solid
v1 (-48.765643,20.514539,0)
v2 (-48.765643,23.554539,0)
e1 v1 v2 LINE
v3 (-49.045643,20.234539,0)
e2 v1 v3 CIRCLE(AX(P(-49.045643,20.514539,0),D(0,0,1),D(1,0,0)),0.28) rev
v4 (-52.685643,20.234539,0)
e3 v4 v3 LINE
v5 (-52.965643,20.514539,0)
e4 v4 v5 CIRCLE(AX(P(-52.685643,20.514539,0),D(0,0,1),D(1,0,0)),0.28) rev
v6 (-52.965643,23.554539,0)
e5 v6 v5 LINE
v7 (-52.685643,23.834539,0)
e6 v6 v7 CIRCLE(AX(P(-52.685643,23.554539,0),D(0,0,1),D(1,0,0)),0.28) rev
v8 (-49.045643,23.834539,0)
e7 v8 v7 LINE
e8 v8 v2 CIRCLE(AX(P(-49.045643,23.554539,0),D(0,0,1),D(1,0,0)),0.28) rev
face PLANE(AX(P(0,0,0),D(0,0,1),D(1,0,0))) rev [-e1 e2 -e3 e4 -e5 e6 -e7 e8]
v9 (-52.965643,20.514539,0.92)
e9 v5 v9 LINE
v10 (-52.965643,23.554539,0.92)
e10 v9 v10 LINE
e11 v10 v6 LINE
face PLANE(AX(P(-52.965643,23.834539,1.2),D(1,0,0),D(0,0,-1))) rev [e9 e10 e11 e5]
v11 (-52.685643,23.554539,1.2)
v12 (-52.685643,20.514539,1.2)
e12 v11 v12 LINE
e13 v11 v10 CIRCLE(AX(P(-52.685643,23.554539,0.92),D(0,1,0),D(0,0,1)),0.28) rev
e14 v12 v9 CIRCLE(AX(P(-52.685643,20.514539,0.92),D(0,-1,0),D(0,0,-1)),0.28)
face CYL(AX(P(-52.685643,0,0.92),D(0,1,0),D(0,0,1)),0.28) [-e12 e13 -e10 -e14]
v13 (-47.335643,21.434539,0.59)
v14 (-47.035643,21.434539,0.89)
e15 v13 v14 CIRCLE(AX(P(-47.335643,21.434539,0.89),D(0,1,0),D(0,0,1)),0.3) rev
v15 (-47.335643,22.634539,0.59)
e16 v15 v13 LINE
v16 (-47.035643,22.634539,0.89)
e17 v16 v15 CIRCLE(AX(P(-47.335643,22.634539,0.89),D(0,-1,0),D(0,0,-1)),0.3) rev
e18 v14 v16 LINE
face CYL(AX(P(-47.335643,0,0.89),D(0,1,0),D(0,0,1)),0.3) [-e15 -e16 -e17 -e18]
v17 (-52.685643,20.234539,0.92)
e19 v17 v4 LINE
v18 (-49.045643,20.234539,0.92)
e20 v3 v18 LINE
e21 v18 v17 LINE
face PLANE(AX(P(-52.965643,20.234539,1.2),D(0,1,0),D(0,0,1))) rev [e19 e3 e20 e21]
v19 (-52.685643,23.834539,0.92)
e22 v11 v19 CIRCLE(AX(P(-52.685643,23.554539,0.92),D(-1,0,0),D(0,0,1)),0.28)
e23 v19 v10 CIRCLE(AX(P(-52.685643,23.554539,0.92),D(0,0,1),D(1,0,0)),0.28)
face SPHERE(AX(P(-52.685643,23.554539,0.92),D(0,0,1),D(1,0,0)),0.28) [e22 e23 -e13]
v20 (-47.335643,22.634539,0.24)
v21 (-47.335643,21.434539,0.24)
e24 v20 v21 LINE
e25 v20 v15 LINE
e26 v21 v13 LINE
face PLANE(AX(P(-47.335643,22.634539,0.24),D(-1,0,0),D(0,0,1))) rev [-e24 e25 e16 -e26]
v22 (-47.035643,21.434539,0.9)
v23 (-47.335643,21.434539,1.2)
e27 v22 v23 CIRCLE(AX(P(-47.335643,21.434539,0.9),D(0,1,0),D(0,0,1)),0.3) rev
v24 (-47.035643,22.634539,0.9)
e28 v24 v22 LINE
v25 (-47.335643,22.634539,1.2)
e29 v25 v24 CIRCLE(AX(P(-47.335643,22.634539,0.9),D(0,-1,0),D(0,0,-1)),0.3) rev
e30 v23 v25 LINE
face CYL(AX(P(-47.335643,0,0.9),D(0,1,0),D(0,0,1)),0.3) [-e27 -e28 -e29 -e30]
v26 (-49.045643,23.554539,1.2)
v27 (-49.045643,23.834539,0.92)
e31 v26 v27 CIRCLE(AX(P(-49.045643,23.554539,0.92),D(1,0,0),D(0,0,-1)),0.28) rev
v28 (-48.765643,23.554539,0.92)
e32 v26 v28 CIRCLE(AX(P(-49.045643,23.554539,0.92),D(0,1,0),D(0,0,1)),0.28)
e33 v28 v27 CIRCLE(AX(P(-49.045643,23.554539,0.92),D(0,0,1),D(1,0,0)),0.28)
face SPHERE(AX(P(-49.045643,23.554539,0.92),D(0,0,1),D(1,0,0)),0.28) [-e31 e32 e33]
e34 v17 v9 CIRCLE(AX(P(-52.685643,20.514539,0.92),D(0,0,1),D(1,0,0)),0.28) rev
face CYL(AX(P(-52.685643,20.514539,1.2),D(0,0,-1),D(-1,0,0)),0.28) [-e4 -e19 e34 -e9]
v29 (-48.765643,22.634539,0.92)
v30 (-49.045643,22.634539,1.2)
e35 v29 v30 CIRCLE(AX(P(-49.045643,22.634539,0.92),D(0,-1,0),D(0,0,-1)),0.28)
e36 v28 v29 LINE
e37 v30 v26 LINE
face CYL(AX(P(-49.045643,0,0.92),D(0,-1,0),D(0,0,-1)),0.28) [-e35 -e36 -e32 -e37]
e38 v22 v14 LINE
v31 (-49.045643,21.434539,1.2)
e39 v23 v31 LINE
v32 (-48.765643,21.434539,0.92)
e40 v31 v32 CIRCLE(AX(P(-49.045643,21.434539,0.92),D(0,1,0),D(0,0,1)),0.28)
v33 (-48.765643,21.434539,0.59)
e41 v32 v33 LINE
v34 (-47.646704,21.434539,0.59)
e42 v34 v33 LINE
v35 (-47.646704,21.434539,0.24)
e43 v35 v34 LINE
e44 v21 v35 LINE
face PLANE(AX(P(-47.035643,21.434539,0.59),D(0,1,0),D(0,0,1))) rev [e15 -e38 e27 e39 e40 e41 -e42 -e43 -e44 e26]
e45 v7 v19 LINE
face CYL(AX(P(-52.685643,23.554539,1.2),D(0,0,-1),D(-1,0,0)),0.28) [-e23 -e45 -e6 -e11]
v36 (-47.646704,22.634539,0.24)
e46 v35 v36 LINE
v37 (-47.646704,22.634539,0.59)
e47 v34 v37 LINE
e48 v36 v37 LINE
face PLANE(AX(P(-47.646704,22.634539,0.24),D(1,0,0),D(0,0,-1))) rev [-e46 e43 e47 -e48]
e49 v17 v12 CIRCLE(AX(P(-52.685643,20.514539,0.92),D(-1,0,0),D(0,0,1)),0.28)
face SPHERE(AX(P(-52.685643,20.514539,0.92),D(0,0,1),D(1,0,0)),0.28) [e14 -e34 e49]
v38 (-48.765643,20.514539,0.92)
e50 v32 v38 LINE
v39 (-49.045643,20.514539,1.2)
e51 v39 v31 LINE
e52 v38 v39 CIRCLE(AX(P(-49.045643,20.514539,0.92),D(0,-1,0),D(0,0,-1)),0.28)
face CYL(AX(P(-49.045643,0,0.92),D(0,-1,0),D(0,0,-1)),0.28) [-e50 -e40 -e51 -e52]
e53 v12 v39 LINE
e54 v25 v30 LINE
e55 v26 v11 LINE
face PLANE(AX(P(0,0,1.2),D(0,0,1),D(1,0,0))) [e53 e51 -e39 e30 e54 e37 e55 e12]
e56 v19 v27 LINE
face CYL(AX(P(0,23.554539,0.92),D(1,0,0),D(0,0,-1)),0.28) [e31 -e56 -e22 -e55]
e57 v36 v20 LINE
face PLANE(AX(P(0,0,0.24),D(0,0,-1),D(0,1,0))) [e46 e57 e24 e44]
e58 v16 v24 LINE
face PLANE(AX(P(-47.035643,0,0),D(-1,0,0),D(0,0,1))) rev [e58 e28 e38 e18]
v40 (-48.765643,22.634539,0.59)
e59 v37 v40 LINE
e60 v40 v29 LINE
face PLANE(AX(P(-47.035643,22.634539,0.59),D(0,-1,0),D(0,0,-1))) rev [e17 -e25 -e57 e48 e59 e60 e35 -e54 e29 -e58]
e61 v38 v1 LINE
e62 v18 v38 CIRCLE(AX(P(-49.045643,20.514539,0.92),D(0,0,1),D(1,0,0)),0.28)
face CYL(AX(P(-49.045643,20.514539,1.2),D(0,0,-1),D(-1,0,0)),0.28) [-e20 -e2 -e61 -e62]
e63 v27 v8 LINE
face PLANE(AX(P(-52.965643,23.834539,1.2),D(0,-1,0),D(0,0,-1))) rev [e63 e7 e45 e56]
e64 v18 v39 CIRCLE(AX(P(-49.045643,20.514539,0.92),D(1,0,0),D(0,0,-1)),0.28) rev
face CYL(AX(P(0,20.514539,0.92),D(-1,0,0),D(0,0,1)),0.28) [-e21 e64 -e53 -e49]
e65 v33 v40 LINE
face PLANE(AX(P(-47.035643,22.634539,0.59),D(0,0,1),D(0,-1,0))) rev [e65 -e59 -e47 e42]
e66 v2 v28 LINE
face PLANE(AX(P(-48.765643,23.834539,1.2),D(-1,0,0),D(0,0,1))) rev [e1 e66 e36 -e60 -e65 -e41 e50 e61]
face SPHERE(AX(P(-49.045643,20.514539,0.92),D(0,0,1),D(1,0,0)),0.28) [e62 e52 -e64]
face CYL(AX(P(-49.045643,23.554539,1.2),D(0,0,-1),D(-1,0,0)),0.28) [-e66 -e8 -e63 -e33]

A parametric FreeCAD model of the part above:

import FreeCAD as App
import Part
import Sketcher
Q = App.Units.Quantity


def edges_at(feature, points):
    """Names of the edges that pass closest to the given points."""
    edges = feature.Shape.Edges
    near = lambda p: min(range(len(edges)), key=lambda i: edges[i].distToShape(Part.Vertex(*p))[0])
    return sorted({f"Edge{near(p) + 1}" for p in points})


def add_polygon(sketch, points):
    """Adds a closed chain of lines whose ends are joined by coincident constraints."""
    first, n = sketch.GeometryCount, len(points)
    for a, b in zip(points, points[1:] + points[:1]):
        sketch.addGeometry(Part.LineSegment(App.Vector(*a, 0), App.Vector(*b, 0)), False)
    for i in range(n):
        sketch.addConstraint(Sketcher.Constraint("Coincident", first + i, 2, first + (i + 1) % n, 1))

doc = App.newDocument("Part")
params = doc.addObject("Spreadsheet::Sheet", "Params")
for row, (alias, value) in enumerate([
    ("sketch1_width", "4.2 mm"),
    ("sketch1_height", "3.6 mm"),
    ("pad1_length", "1.2 mm"),
    ("sketch2_width", "1.2 mm"),
    ("sketch2_height", "0.61 mm"),
    ("pad2_length", "1.73 mm"),
    ("fillet_radius", "0.28 mm"),
    ("fillet2_radius", "0.3 mm"),
    ("sketch3_height", "1.2 mm"),
    ("pad3_length", "0.35 mm"),
], start=1):
    params.set(f"A{row}", alias)
    params.set(f"B{row}", "=" + value)
    params.setAlias(f"B{row}", alias)

body = doc.addObject("PartDesign::Body", "Body")

# Sketch on XY plane
sketch1 = doc.addObject("Sketcher::SketchObject", "Sketch")
body.addObject(sketch1)
sketch1.AttachmentSupport = (doc.XY_Plane, [""])
sketch1.MapMode = "FlatFace"
add_polygon(sketch1, [(-52.965643, 23.834539), (-52.965643, 20.234539), (-48.765643, 20.234539), (-48.765643, 23.834539)])  # lines 0-3
sketch1.addConstraint([
    Sketcher.Constraint("Vertical", 0),
    Sketcher.Constraint("Horizontal", 1),
    Sketcher.Constraint("Vertical", 2),
    Sketcher.Constraint("Horizontal", 3),
    Sketcher.Constraint("DistanceX", 1, 1, 1, 2, Q("4.2 mm")),
    Sketcher.Constraint("DistanceY", 0, 2, 0, 1, Q("3.6 mm")),
    Sketcher.Constraint("DistanceY", -1, 1, 0, 2, Q("20.234539 mm")),
    Sketcher.Constraint("DistanceX", 0, 2, -1, 1, Q("52.965643 mm")),
])
sketch1.setExpression("Constraints[8]", "Params.sketch1_width")
sketch1.setExpression("Constraints[9]", "Params.sketch1_height")
pad1 = doc.addObject("PartDesign::Pad", "Pad")
body.addObject(pad1)
pad1.Profile = sketch1
pad1.setExpression("Length", "Params.pad1_length")

# Sketch on YZ plane
sketch2 = doc.addObject("Sketcher::SketchObject", "Sketch001")
body.addObject(sketch2)
sketch2.AttachmentSupport = (doc.YZ_Plane, [""])
sketch2.MapMode = "FlatFace"
sketch2.AttachmentOffset = App.Placement(App.Vector(0, 0, -48.765643), App.Rotation())
add_polygon(sketch2, [(22.634539, 1.2), (21.434539, 1.2), (21.434539, 0.59), (22.634539, 0.59)])  # lines 0-3
sketch2.addConstraint([
    Sketcher.Constraint("Horizontal", 0),
    Sketcher.Constraint("Vertical", 1),
    Sketcher.Constraint("Horizontal", 2),
    Sketcher.Constraint("Vertical", 3),
    Sketcher.Constraint("DistanceX", 0, 2, 0, 1, Q("1.2 mm")),
    Sketcher.Constraint("DistanceY", 1, 2, 1, 1, Q("0.61 mm")),
    Sketcher.Constraint("DistanceY", -1, 1, 0, 2, Q("1.2 mm")),
    Sketcher.Constraint("DistanceX", -1, 1, 0, 2, Q("21.434539 mm")),
])
sketch2.setExpression("Constraints[8]", "Params.sketch2_width")
sketch2.setExpression("Constraints[9]", "Params.sketch2_height")
pad2 = doc.addObject("PartDesign::Pad", "Pad001")
body.addObject(pad2)
pad2.Profile = sketch2
pad2.setExpression("Length", "Params.pad2_length")
doc.recompute()

fillet = doc.addObject("PartDesign::Fillet", "Fillet")
body.addObject(fillet)
fillet.Base = (pad2, edges_at(pad2, [
    (-48.766, 20.835, 1.2),
    (-48.766, 23.235, 1.2),
    (-50.866, 23.835, 1.2),
    (-52.966, 22.035, 1.2),
    (-52.966, 23.835, 0.6),
    (-48.766, 23.835, 0.6),
    (-48.766, 20.235, 0.6),
    (-52.966, 20.235, 0.6),
    (-50.866, 20.235, 1.2),
]))
fillet.setExpression("Radius", "Params.fillet_radius")
doc.recompute()

fillet2 = doc.addObject("PartDesign::Fillet", "Fillet001")
body.addObject(fillet2)
fillet2.Base = (fillet, edges_at(fillet, [(-47.036, 22.035, 0.59), (-47.036, 22.035, 1.2)]))
fillet2.setExpression("Radius", "Params.fillet2_radius")

# Sketch on XY plane
sketch3 = doc.addObject("Sketcher::SketchObject", "Sketch002")
body.addObject(sketch3)
sketch3.AttachmentSupport = (doc.XY_Plane, [""])
sketch3.MapMode = "FlatFace"
sketch3.AttachmentOffset = App.Placement(App.Vector(0, 0, 0.59), App.Rotation())
add_polygon(sketch3, [(-47.335643, 22.634539), (-47.335643, 21.434539), (-47.646704, 21.434539), (-47.646704, 22.634539)])  # lines 0-3
sketch3.addConstraint([
    Sketcher.Constraint("Vertical", 0),
    Sketcher.Constraint("Horizontal", 1),
    Sketcher.Constraint("Vertical", 2),
    Sketcher.Constraint("Horizontal", 3),
    Sketcher.Constraint("DistanceY", 0, 2, 0, 1, Q("1.2 mm")),
    Sketcher.Constraint("DistanceX", 1, 2, 1, 1, Q("0.311061 mm")),
    Sketcher.Constraint("DistanceY", -1, 1, 0, 2, Q("21.434539 mm")),
    Sketcher.Constraint("DistanceX", 0, 2, -1, 1, Q("47.335643 mm")),
])
sketch3.setExpression("Constraints[8]", "Params.sketch3_height")
pad3 = doc.addObject("PartDesign::Pad", "Pad002")
body.addObject(pad3)
pad3.Profile = sketch3
pad3.setExpression("Length", "Params.pad3_length")
pad3.Reversed = True

doc.recompute()
